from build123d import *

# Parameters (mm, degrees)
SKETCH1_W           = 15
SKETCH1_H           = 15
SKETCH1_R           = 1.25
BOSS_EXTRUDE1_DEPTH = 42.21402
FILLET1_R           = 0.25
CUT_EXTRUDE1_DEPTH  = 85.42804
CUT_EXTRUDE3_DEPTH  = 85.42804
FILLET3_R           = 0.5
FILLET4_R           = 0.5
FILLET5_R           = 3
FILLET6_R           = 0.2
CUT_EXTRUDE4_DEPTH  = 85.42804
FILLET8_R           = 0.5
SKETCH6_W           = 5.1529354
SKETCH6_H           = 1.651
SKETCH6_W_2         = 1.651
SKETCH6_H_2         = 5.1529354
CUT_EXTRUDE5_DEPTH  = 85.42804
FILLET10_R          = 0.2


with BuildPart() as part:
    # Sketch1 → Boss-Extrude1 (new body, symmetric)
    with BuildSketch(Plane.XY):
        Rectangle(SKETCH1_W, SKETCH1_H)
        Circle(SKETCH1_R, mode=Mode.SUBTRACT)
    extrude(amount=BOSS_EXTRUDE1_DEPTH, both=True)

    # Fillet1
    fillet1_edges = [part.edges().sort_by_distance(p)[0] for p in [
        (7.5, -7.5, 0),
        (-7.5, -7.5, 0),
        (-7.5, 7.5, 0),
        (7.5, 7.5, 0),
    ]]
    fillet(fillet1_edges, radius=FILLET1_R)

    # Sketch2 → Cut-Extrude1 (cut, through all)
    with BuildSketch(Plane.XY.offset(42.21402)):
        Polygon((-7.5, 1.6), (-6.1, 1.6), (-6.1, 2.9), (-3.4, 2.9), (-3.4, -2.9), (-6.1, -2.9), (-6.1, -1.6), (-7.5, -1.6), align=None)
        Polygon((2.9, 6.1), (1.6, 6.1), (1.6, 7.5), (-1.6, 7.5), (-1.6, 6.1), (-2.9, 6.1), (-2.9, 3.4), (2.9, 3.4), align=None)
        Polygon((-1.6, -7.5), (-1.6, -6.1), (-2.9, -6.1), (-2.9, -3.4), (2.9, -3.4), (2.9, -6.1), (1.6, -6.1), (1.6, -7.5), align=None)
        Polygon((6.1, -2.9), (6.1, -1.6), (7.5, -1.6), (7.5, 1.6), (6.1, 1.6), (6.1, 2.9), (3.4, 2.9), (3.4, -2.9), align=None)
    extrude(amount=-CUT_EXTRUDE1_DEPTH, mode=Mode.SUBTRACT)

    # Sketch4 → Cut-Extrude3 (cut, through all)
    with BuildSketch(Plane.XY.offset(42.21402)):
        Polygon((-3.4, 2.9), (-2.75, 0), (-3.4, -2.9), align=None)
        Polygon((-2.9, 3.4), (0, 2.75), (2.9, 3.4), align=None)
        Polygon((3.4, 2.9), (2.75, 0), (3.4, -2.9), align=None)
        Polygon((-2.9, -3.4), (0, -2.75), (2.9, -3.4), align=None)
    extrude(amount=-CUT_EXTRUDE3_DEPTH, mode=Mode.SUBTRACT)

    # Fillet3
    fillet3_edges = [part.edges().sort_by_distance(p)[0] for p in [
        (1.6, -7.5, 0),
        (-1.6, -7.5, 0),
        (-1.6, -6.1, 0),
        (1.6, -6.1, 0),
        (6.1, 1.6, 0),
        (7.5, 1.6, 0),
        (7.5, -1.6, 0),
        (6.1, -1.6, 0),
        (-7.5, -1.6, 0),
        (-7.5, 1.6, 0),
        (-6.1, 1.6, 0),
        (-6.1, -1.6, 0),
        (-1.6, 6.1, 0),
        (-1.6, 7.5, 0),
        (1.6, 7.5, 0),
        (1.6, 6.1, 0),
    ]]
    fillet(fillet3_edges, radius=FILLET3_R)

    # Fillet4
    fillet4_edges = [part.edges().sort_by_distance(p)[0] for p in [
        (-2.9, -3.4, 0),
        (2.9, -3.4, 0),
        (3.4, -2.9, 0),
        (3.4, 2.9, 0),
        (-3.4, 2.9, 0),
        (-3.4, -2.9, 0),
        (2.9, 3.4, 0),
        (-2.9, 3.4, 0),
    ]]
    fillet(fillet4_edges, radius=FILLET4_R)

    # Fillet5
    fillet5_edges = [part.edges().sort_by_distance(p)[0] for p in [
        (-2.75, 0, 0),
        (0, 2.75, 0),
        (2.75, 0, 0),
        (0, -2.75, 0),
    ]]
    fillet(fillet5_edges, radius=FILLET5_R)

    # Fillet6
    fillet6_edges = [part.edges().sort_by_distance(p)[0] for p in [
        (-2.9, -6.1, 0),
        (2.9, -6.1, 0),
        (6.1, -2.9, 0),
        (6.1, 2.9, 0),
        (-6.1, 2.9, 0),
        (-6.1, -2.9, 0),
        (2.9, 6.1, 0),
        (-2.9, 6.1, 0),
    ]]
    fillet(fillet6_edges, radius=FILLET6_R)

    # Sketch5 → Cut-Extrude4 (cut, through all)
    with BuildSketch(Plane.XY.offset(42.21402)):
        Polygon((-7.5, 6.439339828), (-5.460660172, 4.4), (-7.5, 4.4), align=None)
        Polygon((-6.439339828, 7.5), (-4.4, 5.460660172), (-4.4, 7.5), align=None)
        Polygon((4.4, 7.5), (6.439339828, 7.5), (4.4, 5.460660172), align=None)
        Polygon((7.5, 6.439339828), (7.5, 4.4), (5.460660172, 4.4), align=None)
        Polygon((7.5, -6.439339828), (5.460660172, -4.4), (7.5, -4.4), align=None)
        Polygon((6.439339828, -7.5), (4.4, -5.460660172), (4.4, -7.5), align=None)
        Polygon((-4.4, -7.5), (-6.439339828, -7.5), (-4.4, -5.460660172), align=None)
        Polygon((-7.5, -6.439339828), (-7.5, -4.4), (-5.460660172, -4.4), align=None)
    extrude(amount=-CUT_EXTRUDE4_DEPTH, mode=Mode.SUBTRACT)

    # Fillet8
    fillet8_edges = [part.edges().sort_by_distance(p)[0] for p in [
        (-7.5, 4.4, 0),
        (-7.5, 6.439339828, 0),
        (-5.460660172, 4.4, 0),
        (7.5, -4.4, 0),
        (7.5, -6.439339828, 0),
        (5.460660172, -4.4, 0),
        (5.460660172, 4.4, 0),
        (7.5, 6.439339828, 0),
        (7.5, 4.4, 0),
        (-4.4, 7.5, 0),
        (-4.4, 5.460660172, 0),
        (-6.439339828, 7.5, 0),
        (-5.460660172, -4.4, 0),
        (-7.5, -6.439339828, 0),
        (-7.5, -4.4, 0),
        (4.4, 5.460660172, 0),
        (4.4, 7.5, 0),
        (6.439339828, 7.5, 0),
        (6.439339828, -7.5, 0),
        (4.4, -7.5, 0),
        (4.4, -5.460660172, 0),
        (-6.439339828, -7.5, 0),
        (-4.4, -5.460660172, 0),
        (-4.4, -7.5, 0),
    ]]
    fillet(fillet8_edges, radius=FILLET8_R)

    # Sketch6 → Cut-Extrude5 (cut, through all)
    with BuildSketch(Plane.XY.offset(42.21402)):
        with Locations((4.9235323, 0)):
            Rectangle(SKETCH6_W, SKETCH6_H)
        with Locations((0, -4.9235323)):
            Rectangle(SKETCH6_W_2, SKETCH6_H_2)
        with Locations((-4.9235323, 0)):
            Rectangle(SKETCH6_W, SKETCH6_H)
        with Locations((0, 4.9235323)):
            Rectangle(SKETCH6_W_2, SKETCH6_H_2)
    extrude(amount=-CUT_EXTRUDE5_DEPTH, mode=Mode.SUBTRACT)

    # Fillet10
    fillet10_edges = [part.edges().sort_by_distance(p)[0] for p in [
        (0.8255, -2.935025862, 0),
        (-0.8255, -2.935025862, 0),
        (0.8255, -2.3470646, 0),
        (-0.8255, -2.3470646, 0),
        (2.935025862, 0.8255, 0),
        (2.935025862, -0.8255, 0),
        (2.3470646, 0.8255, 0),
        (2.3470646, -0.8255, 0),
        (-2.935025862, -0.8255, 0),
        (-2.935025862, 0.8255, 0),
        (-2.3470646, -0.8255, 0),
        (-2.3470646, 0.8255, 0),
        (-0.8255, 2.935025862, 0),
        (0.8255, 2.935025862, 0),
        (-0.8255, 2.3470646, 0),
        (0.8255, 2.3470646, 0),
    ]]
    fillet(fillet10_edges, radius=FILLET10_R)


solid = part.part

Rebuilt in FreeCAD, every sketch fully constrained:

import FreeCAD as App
import Part
import Sketcher


def edges_at(feature, points):
    """Names of the edges that pass closest to the given points."""
    edges = feature.Shape.Edges
    near = lambda p: min(range(len(edges)), key=lambda i: edges[i].distToShape(Part.Vertex(*p))[0])
    return sorted({f"Edge{near(p) + 1}" for p in points})


def add_polygon(sketch, points):
    """Adds a closed chain of lines whose ends are joined by coincident constraints."""
    first, n = sketch.GeometryCount, len(points)
    for a, b in zip(points, points[1:] + points[:1]):
        sketch.addGeometry(Part.LineSegment(App.Vector(*a, 0), App.Vector(*b, 0)), False)
    for i in range(n):
        sketch.addConstraint(Sketcher.Constraint("Coincident", first + i, 2, first + (i + 1) % n, 1))

doc = App.newDocument("Part")
body = doc.addObject("PartDesign::Body", "Body")

sketch1 = body.newObject("Sketcher::SketchObject", "Sketch")
sketch1.AttachmentSupport = (doc.getObject("XY_Plane"), [""])
sketch1.MapMode = "FlatFace"
add_polygon(sketch1, [(-7.5, 7.5), (-7.5, -7.5), (7.5, -7.5), (7.5, 7.5)])
sketch1.addGeometry(Part.Circle(App.Vector(0, 0, 0), App.Vector(0, 0, 1), 1.25), False)
sketch1.addConstraint([
    Sketcher.Constraint("Vertical", 0),
    Sketcher.Constraint("Horizontal", 1),
    Sketcher.Constraint("Vertical", 2),
    Sketcher.Constraint("Horizontal", 3),
    Sketcher.Constraint("Coincident", 4, 3, -1, 1),
    Sketcher.Constraint("Symmetric", 0, 2, 2, 2, -1, 1),
    Sketcher.Constraint("Equal", 3, 0),
    Sketcher.Constraint("Diameter", 4, 2.5),
    Sketcher.Constraint("DistanceX", 1, 1, 1, 2, 15.0),
])
pad1 = body.newObject("PartDesign::Pad", "Pad")
pad1.Profile = sketch1
pad1.Length = 84.42804
pad1.Midplane = True
doc.recompute()

fillet = body.newObject("PartDesign::Fillet", "Fillet")
fillet.Base = (pad1, edges_at(pad1, [
    (7.5, -7.5, 0),
    (-7.5, -7.5, 0),
    (-7.5, 7.5, 0),
    (7.5, 7.5, 0),
]))
fillet.Radius = 0.25

sketch2 = body.newObject("Sketcher::SketchObject", "Sketch001")
sketch2.AttachmentSupport = (doc.getObject("XY_Plane"), [""])
sketch2.MapMode = "FlatFace"
sketch2.AttachmentOffset = App.Placement(App.Vector(0, 0, 42.21402), App.Rotation())
add_polygon(sketch2, [(-6.1, 1.6), (-7.5, 1.6), (-7.5, -1.6), (-6.1, -1.6), (-6.1, -2.9), (-3.4, -2.9), (-3.4, 2.9), (-6.1, 2.9)])
add_polygon(sketch2, [(2.9, 6.1), (1.6, 6.1), (1.6, 7.5), (-1.6, 7.5), (-1.6, 6.1), (-2.9, 6.1), (-2.9, 3.4), (2.9, 3.4)])
add_polygon(sketch2, [(-1.6, -6.1), (-1.6, -7.5), (1.6, -7.5), (1.6, -6.1), (2.9, -6.1), (2.9, -3.4), (-2.9, -3.4), (-2.9, -6.1)])
add_polygon(sketch2, [(6.1, -2.9), (6.1, -1.6), (7.5, -1.6), (7.5, 1.6), (6.1, 1.6), (6.1, 2.9), (3.4, 2.9), (3.4, -2.9)])
sketch2.addConstraint([
    Sketcher.Constraint("Horizontal", 0),
    Sketcher.Constraint("Vertical", 1),
    Sketcher.Constraint("Horizontal", 2),
    Sketcher.Constraint("Vertical", 3),
    Sketcher.Constraint("Horizontal", 4),
    Sketcher.Constraint("Vertical", 5),
    Sketcher.Constraint("Horizontal", 6),
    Sketcher.Constraint("Vertical", 7),
    Sketcher.Constraint("Horizontal", 8),
    Sketcher.Constraint("Vertical", 9),
    Sketcher.Constraint("Horizontal", 10),
    Sketcher.Constraint("Vertical", 11),
    Sketcher.Constraint("Horizontal", 12),
    Sketcher.Constraint("Vertical", 13),
    Sketcher.Constraint("Horizontal", 14),
    Sketcher.Constraint("Vertical", 15),
    Sketcher.Constraint("Vertical", 16),
    Sketcher.Constraint("Horizontal", 17),
    Sketcher.Constraint("Vertical", 18),
    Sketcher.Constraint("Horizontal", 19),
    Sketcher.Constraint("Vertical", 20),
    Sketcher.Constraint("Horizontal", 21),
    Sketcher.Constraint("Vertical", 22),
    Sketcher.Constraint("Horizontal", 23),
    Sketcher.Constraint("Vertical", 24),
    Sketcher.Constraint("Horizontal", 25),
    Sketcher.Constraint("Vertical", 26),
    Sketcher.Constraint("Horizontal", 27),
    Sketcher.Constraint("Vertical", 28),
    Sketcher.Constraint("Horizontal", 29),
    Sketcher.Constraint("Vertical", 30),
    Sketcher.Constraint("Horizontal", 31),
    Sketcher.Constraint("Symmetric", 9, 2, 16, 2, -1, 1),
    Sketcher.Constraint("Symmetric", 11, 2, 18, 2, -1, 1),
    Sketcher.Constraint("Symmetric", 13, 2, 20, 2, -1, 1),
    Sketcher.Constraint("Symmetric", 15, 2, 22, 2, -1, 1),
    Sketcher.Constraint("Symmetric", 7, 2, 24, 2, -1, 1),
    Sketcher.Constraint("Symmetric", 1, 2, 26, 2, -1, 1),
    Sketcher.Constraint("Symmetric", 3, 2, 28, 2, -1, 1),
    Sketcher.Constraint("Symmetric", 5, 2, 30, 2, -1, 1),
    Sketcher.Constraint("Symmetric", 8, 2, 11, 2, -2),
    Sketcher.Constraint("Symmetric", 2, 2, 24, 2, -2),
    Sketcher.Constraint("Horizontal", 6, 2, 28, 2),
    Sketcher.Constraint("Vertical", 15, 2, 19, 2),
    Sketcher.Constraint("Equal", 17, 1),
    Sketcher.Constraint("Equal", 23, 3),
    Sketcher.Constraint("Equal", 27, 9),
    Sketcher.Constraint("Equal", 31, 13),
    Sketcher.Constraint("DistanceX", 0, 2, 0, 1, 1.4),
    Sketcher.Constraint("DistanceX", 4, 1, 4, 2, 2.7),
    Sketcher.Constraint("DistanceX", 8, 2, 8, 1, 1.3),
    Sketcher.Constraint("DistanceX", 10, 2, 10, 1, 3.2),
    Sketcher.Constraint("DistanceX", 5, 2, 8, 2, 5.0),
    Sketcher.Constraint("DistanceY", 4, 2, 8, 2, 9.0),
])
pocket1 = body.newObject("PartDesign::Pocket", "Pocket")
pocket1.Profile = sketch2
pocket1.Type = "ThroughAll"

sketch3 = body.newObject("Sketcher::SketchObject", "Sketch002")
sketch3.AttachmentSupport = (doc.getObject("XY_Plane"), [""])
sketch3.MapMode = "FlatFace"
sketch3.AttachmentOffset = App.Placement(App.Vector(0, 0, 42.21402), App.Rotation())
add_polygon(sketch3, [(-2.75, 0), (-3.4, 2.9), (-3.4, -2.9)])
add_polygon(sketch3, [(-2.9, 3.4), (0, 2.75), (2.9, 3.4)])
add_polygon(sketch3, [(3.4, 2.9), (2.75, 0), (3.4, -2.9)])
add_polygon(sketch3, [(0, -2.75), (-2.9, -3.4), (2.9, -3.4)])
sketch3.addConstraint([
    Sketcher.Constraint("Vertical", 1),
    Sketcher.Constraint("Horizontal", 5),
    Sketcher.Constraint("Vertical", 8),
    Sketcher.Constraint("Horizontal", 10),
    Sketcher.Constraint("Symmetric", 2, 2, 6, 2, -1, 1),
    Sketcher.Constraint("Symmetric", 0, 2, 7, 2, -1, 1),
    Sketcher.Constraint("Symmetric", 4, 2, 9, 2, -1, 1),
    Sketcher.Constraint("Symmetric", 3, 2, 11, 2, -1, 1),
    Sketcher.Constraint("PointOnObject", 2, 2, -1),
    Sketcher.Constraint("PointOnObject", 3, 2, -2),
    Sketcher.Constraint("Perpendicular", 2, 3),
    Sketcher.Constraint("Perpendicular", 0, 4),
    Sketcher.Constraint("Perpendicular", 3, 6),
    Sketcher.Constraint("Perpendicular", 6, 11),
    Sketcher.Constraint("Horizontal", 1, 2, 7, 2),
    Sketcher.Constraint("Equal", 10, 1),
    Sketcher.Constraint("DistanceX", 5, 2, 5, 1, 5.8),
    Sketcher.Constraint("DistanceX", 0, 2, -1, 1, 3.4),
    Sketcher.Constraint("DistanceY", -1, 1, 4, 2, 3.4),
    Sketcher.Constraint("DistanceX", 2, 2, 6, 2, 5.5),
])
pocket2 = body.newObject("PartDesign::Pocket", "Pocket001")
pocket2.Profile = sketch3
pocket2.Type = "ThroughAll"
doc.recompute()

fillet2 = body.newObject("PartDesign::Fillet", "Fillet001")
fillet2.Base = (pocket2, edges_at(pocket2, [
    (1.6, -7.5, 0),
    (-1.6, -7.5, 0),
    (-1.6, -6.1, 0),
    (1.6, -6.1, 0),
    (6.1, 1.6, 0),
    (7.5, 1.6, 0),
    (7.5, -1.6, 0),
    (6.1, -1.6, 0),
    (-7.5, -1.6, 0),
    (-7.5, 1.6, 0),
    (-6.1, 1.6, 0),
    (-6.1, -1.6, 0),
    (-1.6, 6.1, 0),
    (-1.6, 7.5, 0),
    (1.6, 7.5, 0),
    (1.6, 6.1, 0),
]))
fillet2.Radius = 0.5
doc.recompute()

fillet3 = body.newObject("PartDesign::Fillet", "Fillet002")
fillet3.Base = (fillet2, edges_at(fillet2, [
    (-2.9, -3.4, 0),
    (2.9, -3.4, 0),
    (3.4, -2.9, 0),
    (3.4, 2.9, 0),
    (-3.4, 2.9, 0),
    (-3.4, -2.9, 0),
    (2.9, 3.4, 0),
    (-2.9, 3.4, 0),
]))
fillet3.Radius = 0.5
doc.recompute()

fillet4 = body.newObject("PartDesign::Fillet", "Fillet003")
fillet4.Base = (fillet3, edges_at(fillet3, [
    (-2.75, 0, 0),
    (0, 2.75, 0),
    (2.75, 0, 0),
    (0, -2.75, 0),
]))
fillet4.Radius = 3
doc.recompute()

fillet5 = body.newObject("PartDesign::Fillet", "Fillet004")
fillet5.Base = (fillet4, edges_at(fillet4, [
    (-2.9, -6.1, 0),
    (2.9, -6.1, 0),
    (6.1, -2.9, 0),
    (6.1, 2.9, 0),
    (-6.1, 2.9, 0),
    (-6.1, -2.9, 0),
    (2.9, 6.1, 0),
    (-2.9, 6.1, 0),
]))
fillet5.Radius = 0.2

sketch4 = body.newObject("Sketcher::SketchObject", "Sketch003")
sketch4.AttachmentSupport = (doc.getObject("XY_Plane"), [""])
sketch4.MapMode = "FlatFace"
sketch4.AttachmentOffset = App.Placement(App.Vector(0, 0, 42.21402), App.Rotation())
add_polygon(sketch4, [(-5.46066, 4.4), (-7.5, 6.43934), (-7.5, 4.4)])
add_polygon(sketch4, [(-6.43934, 7.5), (-4.4, 5.46066), (-4.4, 7.5)])
add_polygon(sketch4, [(6.43934, 7.5), (4.4, 7.5), (4.4, 5.46066)])
add_polygon(sketch4, [(7.5, 4.4), (7.5, 6.43934), (5.46066, 4.4)])
add_polygon(sketch4, [(5.46066, -4.4), (7.5, -6.43934), (7.5, -4.4)])
add_polygon(sketch4, [(6.43934, -7.5), (4.4, -5.46066), (4.4, -7.5)])
add_polygon(sketch4, [(-6.43934, -7.5), (-4.4, -7.5), (-4.4, -5.46066)])
add_polygon(sketch4, [(-7.5, -4.4), (-7.5, -6.43934), (-5.46066, -4.4)])
sketch4.addConstraint([
    Sketcher.Constraint("Vertical", 1),
    Sketcher.Constraint("Horizontal", 2),
    Sketcher.Constraint("Vertical", 4),
    Sketcher.Constraint("Horizontal", 5),
    Sketcher.Constraint("Horizontal", 6),
    Sketcher.Constraint("Vertical", 7),
    Sketcher.Constraint("Vertical", 9),
    Sketcher.Constraint("Horizontal", 11),
    Sketcher.Constraint("Vertical", 13),
    Sketcher.Constraint("Horizontal", 14),
    Sketcher.Constraint("Vertical", 16),
    Sketcher.Constraint("Horizontal", 17),
    Sketcher.Constraint("Horizontal", 18),
    Sketcher.Constraint("Vertical", 19),
    Sketcher.Constraint("Vertical", 21),
    Sketcher.Constraint("Horizontal", 23),
    Sketcher.Constraint("Symmetric", 0, 2, 12, 2, -1, 1),
    Sketcher.Constraint("Symmetric", 2, 2, 14, 2, -1, 1),
    Sketcher.Constraint("Symmetric", 3, 2, 15, 2, -1, 1),
    Sketcher.Constraint("Symmetric", 5, 2, 17, 2, -1, 1),
    Sketcher.Constraint("Symmetric", 6, 2, 18, 2, -1, 1),
    Sketcher.Constraint("Symmetric", 9, 2, 21, 2, -1, 1),
    Sketcher.Constraint("Symmetric", 10, 2, 22, 2, -1, 1),
    Sketcher.Constraint("Symmetric", 4, 2, 6, 2, -2),
    Sketcher.Constraint("Symmetric", 0, 2, 9, 2, -2),
    Sketcher.Constraint("Symmetric", 2, 2, 10, 2, -2),
    Sketcher.Constraint("Parallel", 0, 3),
    Sketcher.Constraint("Perpendicular", 3, 8),
    Sketcher.Constraint("Parallel", 8, 10),
    Sketcher.Constraint("Perpendicular", 15, 20),
    Sketcher.Constraint("Horizontal", 3, 2, 7, 2),
    Sketcher.Constraint("Horizontal", 15, 2, 19, 2),
    Sketcher.Constraint("Equal", 2, 5),
    Sketcher.Constraint("DistanceX", 0, 2, -1, 1, 7.5),
    Sketcher.Constraint("DistanceY", -1, 1, 1, 2, 4.4),
    Sketcher.Constraint("DistanceX", 3, 2, -1, 1, 4.4),
    Sketcher.Constraint("DistanceY", -1, 1, 4, 2, 7.5),
    Sketcher.Constraint("DistanceX", 2, 1, 2, 2, 2.03934),
])
pocket3 = body.newObject("PartDesign::Pocket", "Pocket002")
pocket3.Profile = sketch4
pocket3.Type = "ThroughAll"
doc.recompute()

fillet6 = body.newObject("PartDesign::Fillet", "Fillet005")
fillet6.Base = (pocket3, edges_at(pocket3, [
    (-7.5, 4.4, 0),
    (-7.5, 6.439, 0),
    (-5.461, 4.4, 0),
    (7.5, -4.4, 0),
    (7.5, -6.439, 0),
    (5.461, -4.4, 0),
    (5.461, 4.4, 0),
    (7.5, 6.439, 0),
    (7.5, 4.4, 0),
    (-4.4, 7.5, 0),
    (-4.4, 5.461, 0),
    (-6.439, 7.5, 0),
    (-5.461, -4.4, 0),
    (-7.5, -6.439, 0),
    (-7.5, -4.4, 0),
    (4.4, 5.461, 0),
    (4.4, 7.5, 0),
    (6.439, 7.5, 0),
    (6.439, -7.5, 0),
    (4.4, -7.5, 0),
    (4.4, -5.461, 0),
    (-6.439, -7.5, 0),
    (-4.4, -5.461, 0),
    (-4.4, -7.5, 0),
]))
fillet6.Radius = 0.5

sketch5 = body.newObject("Sketcher::SketchObject", "Sketch004")
sketch5.AttachmentSupport = (doc.getObject("XY_Plane"), [""])
sketch5.MapMode = "FlatFace"
sketch5.AttachmentOffset = App.Placement(App.Vector(0, 0, 42.21402), App.Rotation())
add_polygon(sketch5, [(2.347065, 0.8255), (2.347065, -0.8255), (7.5, -0.8255), (7.5, 0.8255)])
add_polygon(sketch5, [(-0.8255, -2.347065), (-0.8255, -7.5), (0.8255, -7.5), (0.8255, -2.347065)])
add_polygon(sketch5, [(-7.5, 0.8255), (-7.5, -0.8255), (-2.347065, -0.8255), (-2.347065, 0.8255)])
add_polygon(sketch5, [(-0.8255, 7.5), (-0.8255, 2.347065), (0.8255, 2.347065), (0.8255, 7.5)])
sketch5.addConstraint([
    Sketcher.Constraint("Vertical", 0),
    Sketcher.Constraint("Horizontal", 1),
    Sketcher.Constraint("Vertical", 2),
    Sketcher.Constraint("Horizontal", 3),
    Sketcher.Constraint("Vertical", 4),
    Sketcher.Constraint("Horizontal", 5),
    Sketcher.Constraint("Vertical", 6),
    Sketcher.Constraint("Horizontal", 7),
    Sketcher.Constraint("Vertical", 8),
    Sketcher.Constraint("Horizontal", 9),
    Sketcher.Constraint("Vertical", 10),
    Sketcher.Constraint("Horizontal", 11),
    Sketcher.Constraint("Vertical", 12),
    Sketcher.Constraint("Horizontal", 13),
    Sketcher.Constraint("Vertical", 14),
    Sketcher.Constraint("Horizontal", 15),
    Sketcher.Constraint("Symmetric", 2, 2, 8, 2, -1, 1),
    Sketcher.Constraint("Symmetric", 0, 2, 10, 2, -1, 1),
    Sketcher.Constraint("Symmetric", 6, 2, 12, 2, -1, 1),
    Sketcher.Constraint("Symmetric", 4, 2, 14, 2, -1, 1),
    Sketcher.Constraint("Horizontal", 1, 2, 8, 2),
    Sketcher.Constraint("Vertical", 7, 2, 12, 2),
    Sketcher.Constraint("Equal", 15, 0),
    Sketcher.Constraint("Equal", 11, 4),
    Sketcher.Constraint("DistanceX", -1, 1, 1, 2, 7.5),
    Sketcher.Constraint("DistanceY", 4, 2, -1, 1, 7.5),
    Sketcher.Constraint("DistanceX", 5, 1, 5, 2, 1.651),
    Sketcher.Constraint("DistanceX", 1, 1, 1, 2, 5.152935),
])
pocket4 = body.newObject("PartDesign::Pocket", "Pocket003")
pocket4.Profile = sketch5
pocket4.Type = "ThroughAll"
doc.recompute()

fillet7 = body.newObject("PartDesign::Fillet", "Fillet006")
fillet7.Base = (pocket4, edges_at(pocket4, [
    (0.826, -2.935, 0),
    (-0.826, -2.935, 0),
    (0.826, -2.347, 0),
    (-0.826, -2.347, 0),
    (2.935, 0.826, 0),
    (2.935, -0.826, 0),
    (2.347, 0.826, 0),
    (2.347, -0.826, 0),
    (-2.935, -0.826, 0),
    (-2.935, 0.826, 0),
    (-2.347, -0.826, 0),
    (-2.347, 0.826, 0),
    (-0.826, 2.935, 0),
    (0.826, 2.935, 0),
    (-0.826, 2.347, 0),
    (0.826, 2.347, 0),
]))
fillet7.Radius = 0.2

doc.recompute()
